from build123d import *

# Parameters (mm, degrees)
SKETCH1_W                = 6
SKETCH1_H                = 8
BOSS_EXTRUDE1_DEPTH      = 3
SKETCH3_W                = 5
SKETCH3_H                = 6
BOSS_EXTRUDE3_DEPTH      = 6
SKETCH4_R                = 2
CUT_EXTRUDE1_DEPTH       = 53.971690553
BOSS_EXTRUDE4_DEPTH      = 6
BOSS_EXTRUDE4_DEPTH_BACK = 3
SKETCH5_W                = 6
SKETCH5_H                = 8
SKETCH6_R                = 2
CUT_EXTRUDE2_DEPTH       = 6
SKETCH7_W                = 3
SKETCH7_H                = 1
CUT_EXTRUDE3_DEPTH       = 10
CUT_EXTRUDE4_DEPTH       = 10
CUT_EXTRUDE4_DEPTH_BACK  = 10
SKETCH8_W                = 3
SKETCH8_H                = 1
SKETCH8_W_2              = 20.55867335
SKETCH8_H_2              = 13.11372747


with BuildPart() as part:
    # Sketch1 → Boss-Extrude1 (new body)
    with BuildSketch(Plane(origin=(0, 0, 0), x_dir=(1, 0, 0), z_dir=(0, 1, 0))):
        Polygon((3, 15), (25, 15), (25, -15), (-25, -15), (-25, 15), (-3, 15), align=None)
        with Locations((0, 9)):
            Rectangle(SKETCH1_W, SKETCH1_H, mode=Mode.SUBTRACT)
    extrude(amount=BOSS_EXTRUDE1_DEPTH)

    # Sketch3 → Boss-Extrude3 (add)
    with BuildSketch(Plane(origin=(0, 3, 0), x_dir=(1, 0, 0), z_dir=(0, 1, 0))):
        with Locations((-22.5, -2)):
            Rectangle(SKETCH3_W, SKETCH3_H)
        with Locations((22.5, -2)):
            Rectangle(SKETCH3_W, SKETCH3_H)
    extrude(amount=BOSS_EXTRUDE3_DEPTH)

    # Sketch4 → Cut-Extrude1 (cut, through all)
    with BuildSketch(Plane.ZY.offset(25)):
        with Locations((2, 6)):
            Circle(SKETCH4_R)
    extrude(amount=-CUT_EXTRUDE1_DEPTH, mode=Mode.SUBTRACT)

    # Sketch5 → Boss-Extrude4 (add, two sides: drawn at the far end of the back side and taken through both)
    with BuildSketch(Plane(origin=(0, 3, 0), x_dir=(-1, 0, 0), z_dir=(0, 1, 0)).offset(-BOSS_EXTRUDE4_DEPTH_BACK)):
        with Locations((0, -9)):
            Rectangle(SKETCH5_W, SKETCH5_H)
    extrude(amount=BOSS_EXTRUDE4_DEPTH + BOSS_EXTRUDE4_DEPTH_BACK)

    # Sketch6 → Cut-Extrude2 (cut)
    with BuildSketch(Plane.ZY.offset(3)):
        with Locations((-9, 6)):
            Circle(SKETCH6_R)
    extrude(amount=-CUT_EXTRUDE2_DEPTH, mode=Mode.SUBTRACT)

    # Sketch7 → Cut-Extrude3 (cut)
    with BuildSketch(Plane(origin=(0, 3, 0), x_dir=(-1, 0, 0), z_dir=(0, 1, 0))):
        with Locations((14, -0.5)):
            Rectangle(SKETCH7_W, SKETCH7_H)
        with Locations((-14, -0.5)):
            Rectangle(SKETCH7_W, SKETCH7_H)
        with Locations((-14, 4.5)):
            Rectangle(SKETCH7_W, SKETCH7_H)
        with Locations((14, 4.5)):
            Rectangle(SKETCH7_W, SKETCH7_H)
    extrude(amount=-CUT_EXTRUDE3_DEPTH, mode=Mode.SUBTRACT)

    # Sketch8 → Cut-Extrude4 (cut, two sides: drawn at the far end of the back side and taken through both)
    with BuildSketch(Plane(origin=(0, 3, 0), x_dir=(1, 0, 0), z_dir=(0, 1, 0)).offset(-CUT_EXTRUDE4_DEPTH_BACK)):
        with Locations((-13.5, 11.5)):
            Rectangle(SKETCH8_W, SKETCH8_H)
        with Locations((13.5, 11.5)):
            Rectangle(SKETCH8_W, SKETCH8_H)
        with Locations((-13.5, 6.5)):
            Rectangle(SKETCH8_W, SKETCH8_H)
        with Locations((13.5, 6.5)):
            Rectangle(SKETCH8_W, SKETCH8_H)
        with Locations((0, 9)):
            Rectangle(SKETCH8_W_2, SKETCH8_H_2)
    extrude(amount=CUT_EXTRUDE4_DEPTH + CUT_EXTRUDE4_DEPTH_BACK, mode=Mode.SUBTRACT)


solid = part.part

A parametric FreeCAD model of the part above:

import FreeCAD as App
import Part
import Sketcher

V = App.Vector

doc = App.newDocument("Part")
body = doc.addObject("PartDesign::Body", "Body")

sketch1 = body.newObject("Sketcher::SketchObject", "Sketch")
sketch1.AttachmentSupport = (doc.getObject("XZ_Plane"), [""])
sketch1.MapMode = "FlatFace"
sketch1.addGeometry([
    Part.LineSegment(V(25, -15, 0), V(-25, -15, 0)),
    Part.LineSegment(V(-25, -15, 0), V(-25, 15, 0)),
    Part.LineSegment(V(-25, 15, 0), V(25, 15, 0)),
    Part.LineSegment(V(25, 15, 0), V(25, -15, 0)),
    Part.LineSegment(V(-3, -5, 0), V(-3, -13, 0)),
    Part.LineSegment(V(-3, -13, 0), V(3, -13, 0)),
    Part.LineSegment(V(3, -13, 0), V(3, -5, 0)),
    Part.LineSegment(V(3, -5, 0), V(-3, -5, 0)),
], False)
sketch1.addConstraint([
    Sketcher.Constraint("Coincident", 0, 2, 1, 1),
    Sketcher.Constraint("Coincident", 1, 2, 2, 1),
    Sketcher.Constraint("Coincident", 2, 2, 3, 1),
    Sketcher.Constraint("Coincident", 3, 2, 0, 1),
    Sketcher.Constraint("Coincident", 4, 2, 5, 1),
    Sketcher.Constraint("Coincident", 5, 2, 6, 1),
    Sketcher.Constraint("Coincident", 6, 2, 7, 1),
    Sketcher.Constraint("Coincident", 7, 2, 4, 1),
    Sketcher.Constraint("Horizontal", 0),
    Sketcher.Constraint("Vertical", 1),
    Sketcher.Constraint("Horizontal", 2),
    Sketcher.Constraint("Vertical", 3),
    Sketcher.Constraint("Vertical", 4),
    Sketcher.Constraint("Horizontal", 5),
    Sketcher.Constraint("Vertical", 6),
    Sketcher.Constraint("Horizontal", 7),
    Sketcher.Constraint("Symmetric", 0, 2, 2, 2, -1, 1),
    Sketcher.Constraint("DistanceX", 0, 2, 0, 1, 50.0),
    Sketcher.Constraint("DistanceX", 5, 1, 5, 2, 6.0),
    Sketcher.Constraint("DistanceY", 1, 1, 1, 2, 30.0),
    Sketcher.Constraint("DistanceY", 4, 2, 4, 1, 8.0),
    Sketcher.Constraint("DistanceX", 4, 2, -1, 1, 3.0),
    Sketcher.Constraint("DistanceY", 4, 2, -1, 1, 13.0),
])
pad1 = body.newObject("PartDesign::Pad", "Pad")
pad1.Profile = sketch1
pad1.Length = 3
pad1.Reversed = True

sketch2 = body.newObject("Sketcher::SketchObject", "Sketch001")
sketch2.AttachmentSupport = (doc.getObject("XZ_Plane"), [""])
sketch2.MapMode = "FlatFace"
sketch2.AttachmentOffset = App.Placement(V(0, 0, -3), App.Rotation())
sketch2.addGeometry([
    Part.LineSegment(V(-25, -1, 0), V(-25, 5, 0)),
    Part.LineSegment(V(-25, 5, 0), V(-20, 5, 0)),
    Part.LineSegment(V(-20, 5, 0), V(-20, -1, 0)),
    Part.LineSegment(V(-20, -1, 0), V(-25, -1, 0)),
    Part.LineSegment(V(20, -1, 0), V(20, 5, 0)),
    Part.LineSegment(V(20, 5, 0), V(25, 5, 0)),
    Part.LineSegment(V(25, 5, 0), V(25, -1, 0)),
    Part.LineSegment(V(25, -1, 0), V(20, -1, 0)),
], False)
sketch2.addConstraint([
    Sketcher.Constraint("Coincident", 0, 2, 1, 1),
    Sketcher.Constraint("Coincident", 1, 2, 2, 1),
    Sketcher.Constraint("Coincident", 2, 2, 3, 1),
    Sketcher.Constraint("Coincident", 3, 2, 0, 1),
    Sketcher.Constraint("Coincident", 4, 2, 5, 1),
    Sketcher.Constraint("Coincident", 5, 2, 6, 1),
    Sketcher.Constraint("Coincident", 6, 2, 7, 1),
    Sketcher.Constraint("Coincident", 7, 2, 4, 1),
    Sketcher.Constraint("Vertical", 0),
    Sketcher.Constraint("Horizontal", 1),
    Sketcher.Constraint("Vertical", 2),
    Sketcher.Constraint("Horizontal", 3),
    Sketcher.Constraint("Vertical", 4),
    Sketcher.Constraint("Horizontal", 5),
    Sketcher.Constraint("Vertical", 6),
    Sketcher.Constraint("Horizontal", 7),
    Sketcher.Constraint("Symmetric", 1, 2, 4, 2, -2),
    Sketcher.Constraint("Symmetric", 3, 2, 6, 2, -2),
    Sketcher.Constraint("DistanceX", 1, 1, 1, 2, 5.0),
    Sketcher.Constraint("DistanceY", 0, 1, 0, 2, 6.0),
    Sketcher.Constraint("DistanceX", 0, 2, -1, 1, 25.0),
    Sketcher.Constraint("DistanceY", -1, 1, 0, 2, 5.0),
])
pad2 = body.newObject("PartDesign::Pad", "Pad001")
pad2.Profile = sketch2
pad2.Length = 6
pad2.Reversed = True

sketch3 = body.newObject("Sketcher::SketchObject", "Sketch002")
sketch3.AttachmentSupport = (doc.getObject("YZ_Plane"), [""])
sketch3.MapMode = "FlatFace"
sketch3.AttachmentOffset = App.Placement(V(0, 0, -25), App.Rotation())
sketch3.addGeometry(Part.Circle(V(6, 2, 0), V(0, 0, 1), 2), False)
sketch3.addConstraint([
    Sketcher.Constraint("Diameter", 0, 4.0),
    Sketcher.Constraint("DistanceX", -1, 1, 0, 3, 6.0),
    Sketcher.Constraint("DistanceY", -1, 1, 0, 3, 2.0),
])
pocket1 = body.newObject("PartDesign::Pocket", "Pocket")
pocket1.Profile = sketch3
pocket1.Type = "ThroughAll"
pocket1.Reversed = True

sketch4 = body.newObject("Sketcher::SketchObject", "Sketch003")
sketch4.AttachmentSupport = (doc.getObject("XZ_Plane"), [""])
sketch4.MapMode = "FlatFace"
sketch4.AttachmentOffset = App.Placement(V(0, 0, -3), App.Rotation())
sketch4.addGeometry([
    Part.LineSegment(V(3, -5, 0), V(3, -13, 0)),
    Part.LineSegment(V(3, -13, 0), V(-3, -13, 0)),
    Part.LineSegment(V(-3, -13, 0), V(-3, -5, 0)),
    Part.LineSegment(V(-3, -5, 0), V(3, -5, 0)),
], False)
sketch4.addConstraint([
    Sketcher.Constraint("Coincident", 0, 2, 1, 1),
    Sketcher.Constraint("Coincident", 1, 2, 2, 1),
    Sketcher.Constraint("Coincident", 2, 2, 3, 1),
    Sketcher.Constraint("Coincident", 3, 2, 0, 1),
    Sketcher.Constraint("Vertical", 0),
    Sketcher.Constraint("Horizontal", 1),
    Sketcher.Constraint("Vertical", 2),
    Sketcher.Constraint("Horizontal", 3),
    Sketcher.Constraint("DistanceX", 1, 2, 1, 1, 6.0),
    Sketcher.Constraint("DistanceY", 0, 2, 0, 1, 8.0),
    Sketcher.Constraint("DistanceX", -1, 1, 0, 2, 3.0),
    Sketcher.Constraint("DistanceY", 0, 2, -1, 1, 13.0),
])
pad3 = body.newObject("PartDesign::Pad", "Pad002")
pad3.Profile = sketch4
pad3.Type = "TwoLengths"
pad3.Length = 6
pad3.Length2 = 3
pad3.Reversed = True

sketch5 = body.newObject("Sketcher::SketchObject", "Sketch004")
sketch5.AttachmentSupport = (doc.getObject("YZ_Plane"), [""])
sketch5.MapMode = "FlatFace"
sketch5.AttachmentOffset = App.Placement(V(0, 0, -3), App.Rotation())
sketch5.addGeometry(Part.Circle(V(6, -9, 0), V(0, 0, 1), 2), False)
sketch5.addConstraint([
    Sketcher.Constraint("Diameter", 0, 4.0),
    Sketcher.Constraint("DistanceX", -1, 1, 0, 3, 6.0),
    Sketcher.Constraint("DistanceY", 0, 3, -1, 1, 9.0),
])
pocket2 = body.newObject("PartDesign::Pocket", "Pocket001")
pocket2.Profile = sketch5
pocket2.Length = 6
pocket2.Reversed = True

sketch6 = body.newObject("Sketcher::SketchObject", "Sketch005")
sketch6.AttachmentSupport = (doc.getObject("XZ_Plane"), [""])
sketch6.MapMode = "FlatFace"
sketch6.AttachmentOffset = App.Placement(V(0, 0, -3), App.Rotation())
sketch6.addGeometry([
    Part.LineSegment(V(-12.5, 0, 0), V(-12.5, -1, 0)),
    Part.LineSegment(V(-12.5, -1, 0), V(-15.5, -1, 0)),
    Part.LineSegment(V(-15.5, -1, 0), V(-15.5, 0, 0)),
    Part.LineSegment(V(-15.5, 0, 0), V(-12.5, 0, 0)),
    Part.LineSegment(V(15.5, 0, 0), V(15.5, -1, 0)),
    Part.LineSegment(V(15.5, -1, 0), V(12.5, -1, 0)),
    Part.LineSegment(V(12.5, -1, 0), V(12.5, 0, 0)),
    Part.LineSegment(V(12.5, 0, 0), V(15.5, 0, 0)),
    Part.LineSegment(V(15.5, 5, 0), V(15.5, 4, 0)),
    Part.LineSegment(V(15.5, 4, 0), V(12.5, 4, 0)),
    Part.LineSegment(V(12.5, 4, 0), V(12.5, 5, 0)),
    Part.LineSegment(V(12.5, 5, 0), V(15.5, 5, 0)),
    Part.LineSegment(V(-12.5, 5, 0), V(-12.5, 4, 0)),
    Part.LineSegment(V(-12.5, 4, 0), V(-15.5, 4, 0)),
    Part.LineSegment(V(-15.5, 4, 0), V(-15.5, 5, 0)),
    Part.LineSegment(V(-15.5, 5, 0), V(-12.5, 5, 0)),
], False)
sketch6.addConstraint([
    Sketcher.Constraint("Coincident", 0, 2, 1, 1),
    Sketcher.Constraint("Coincident", 1, 2, 2, 1),
    Sketcher.Constraint("Coincident", 2, 2, 3, 1),
    Sketcher.Constraint("Coincident", 3, 2, 0, 1),
    Sketcher.Constraint("Coincident", 4, 2, 5, 1),
    Sketcher.Constraint("Coincident", 5, 2, 6, 1),
    Sketcher.Constraint("Coincident", 6, 2, 7, 1),
    Sketcher.Constraint("Coincident", 7, 2, 4, 1),
    Sketcher.Constraint("Coincident", 8, 2, 9, 1),
    Sketcher.Constraint("Coincident", 9, 2, 10, 1),
    Sketcher.Constraint("Coincident", 10, 2, 11, 1),
    Sketcher.Constraint("Coincident", 11, 2, 8, 1),
    Sketcher.Constraint("Coincident", 12, 2, 13, 1),
    Sketcher.Constraint("Coincident", 13, 2, 14, 1),
    Sketcher.Constraint("Coincident", 14, 2, 15, 1),
    Sketcher.Constraint("Coincident", 15, 2, 12, 1),
    Sketcher.Constraint("Vertical", 0),
    Sketcher.Constraint("Horizontal", 1),
    Sketcher.Constraint("Vertical", 2),
    Sketcher.Constraint("Horizontal", 3),
    Sketcher.Constraint("Vertical", 4),
    Sketcher.Constraint("Horizontal", 5),
    Sketcher.Constraint("Vertical", 6),
    Sketcher.Constraint("Horizontal", 7),
    Sketcher.Constraint("Vertical", 8),
    Sketcher.Constraint("Horizontal", 9),
    Sketcher.Constraint("Vertical", 10),
    Sketcher.Constraint("Horizontal", 11),
    Sketcher.Constraint("Vertical", 12),
    Sketcher.Constraint("Horizontal", 13),
    Sketcher.Constraint("Vertical", 14),
    Sketcher.Constraint("Horizontal", 15),
    Sketcher.Constraint("Symmetric", 3, 2, 6, 2, -1, 1),
    Sketcher.Constraint("Symmetric", 1, 2, 4, 2, -2),
    Sketcher.Constraint("Symmetric", 9, 2, 12, 2, -2),
    Sketcher.Constraint("Symmetric", 11, 2, 14, 2, -2),
    Sketcher.Constraint("PointOnObject", 2, 2, -1),
    Sketcher.Constraint("Vertical", 7, 2, 8, 2),
    Sketcher.Constraint("Vertical", 6, 2, 9, 2),
    Sketcher.Constraint("Equal", 6, 8),
    Sketcher.Constraint("DistanceX", 1, 2, 1, 1, 3.0),
    Sketcher.Constraint("DistanceY", 0, 2, 0, 1, 1.0),
    Sketcher.Constraint("DistanceY", -1, 1, 8, 2, 4.0),
    Sketcher.Constraint("DistanceX", 0, 2, 4, 2, 28.0),
])
pocket3 = body.newObject("PartDesign::Pocket", "Pocket002")
pocket3.Profile = sketch6
pocket3.Length = 10
pocket3.Reversed = True

sketch7 = body.newObject("Sketcher::SketchObject", "Sketch006")
sketch7.AttachmentSupport = (doc.getObject("XZ_Plane"), [""])
sketch7.MapMode = "FlatFace"
sketch7.AttachmentOffset = App.Placement(V(0, 0, -3), App.Rotation())
sketch7.addGeometry([
    Part.LineSegment(V(-15, -12, 0), V(-15, -11, 0)),
    Part.LineSegment(V(-15, -11, 0), V(-12, -11, 0)),
    Part.LineSegment(V(-12, -11, 0), V(-12, -12, 0)),
    Part.LineSegment(V(-12, -12, 0), V(-15, -12, 0)),
    Part.LineSegment(V(12, -12, 0), V(12, -11, 0)),
    Part.LineSegment(V(12, -11, 0), V(15, -11, 0)),
    Part.LineSegment(V(15, -11, 0), V(15, -12, 0)),
    Part.LineSegment(V(15, -12, 0), V(12, -12, 0)),
    Part.LineSegment(V(-15, -7, 0), V(-15, -6, 0)),
    Part.LineSegment(V(-15, -6, 0), V(-12, -6, 0)),
    Part.LineSegment(V(-12, -6, 0), V(-12, -7, 0)),
    Part.LineSegment(V(-12, -7, 0), V(-15, -7, 0)),
    Part.LineSegment(V(12, -7, 0), V(12, -6, 0)),
    Part.LineSegment(V(12, -6, 0), V(15, -6, 0)),
    Part.LineSegment(V(15, -6, 0), V(15, -7, 0)),
    Part.LineSegment(V(15, -7, 0), V(12, -7, 0)),
    Part.LineSegment(V(-10.3, -15.6, 0), V(-10.3, -2.4, 0)),
    Part.LineSegment(V(-10.3, -2.4, 0), V(10.3, -2.4, 0)),
    Part.LineSegment(V(10.3, -2.4, 0), V(10.3, -15.6, 0)),
    Part.LineSegment(V(10.3, -15.6, 0), V(-10.3, -15.6, 0)),
], False)
sketch7.addConstraint([
    Sketcher.Constraint("Coincident", 0, 2, 1, 1),
    Sketcher.Constraint("Coincident", 1, 2, 2, 1),
    Sketcher.Constraint("Coincident", 2, 2, 3, 1),
    Sketcher.Constraint("Coincident", 3, 2, 0, 1),
    Sketcher.Constraint("Coincident", 4, 2, 5, 1),
    Sketcher.Constraint("Coincident", 5, 2, 6, 1),
    Sketcher.Constraint("Coincident", 6, 2, 7, 1),
    Sketcher.Constraint("Coincident", 7, 2, 4, 1),
    Sketcher.Constraint("Coincident", 8, 2, 9, 1),
    Sketcher.Constraint("Coincident", 9, 2, 10, 1),
    Sketcher.Constraint("Coincident", 10, 2, 11, 1),
    Sketcher.Constraint("Coincident", 11, 2, 8, 1),
    Sketcher.Constraint("Coincident", 12, 2, 13, 1),
    Sketcher.Constraint("Coincident", 13, 2, 14, 1),
    Sketcher.Constraint("Coincident", 14, 2, 15, 1),
    Sketcher.Constraint("Coincident", 15, 2, 12, 1),
    Sketcher.Constraint("Coincident", 16, 2, 17, 1),
    Sketcher.Constraint("Coincident", 17, 2, 18, 1),
    Sketcher.Constraint("Coincident", 18, 2, 19, 1),
    Sketcher.Constraint("Coincident", 19, 2, 16, 1),
    Sketcher.Constraint("Vertical", 0),
    Sketcher.Constraint("Horizontal", 1),
    Sketcher.Constraint("Vertical", 2),
    Sketcher.Constraint("Horizontal", 3),
    Sketcher.Constraint("Vertical", 4),
    Sketcher.Constraint("Horizontal", 5),
    Sketcher.Constraint("Vertical", 6),
    Sketcher.Constraint("Horizontal", 7),
    Sketcher.Constraint("Vertical", 8),
    Sketcher.Constraint("Horizontal", 9),
    Sketcher.Constraint("Vertical", 10),
    Sketcher.Constraint("Horizontal", 11),
    Sketcher.Constraint("Vertical", 12),
    Sketcher.Constraint("Horizontal", 13),
    Sketcher.Constraint("Vertical", 14),
    Sketcher.Constraint("Horizontal", 15),
    Sketcher.Constraint("Vertical", 16),
    Sketcher.Constraint("Horizontal", 17),
    Sketcher.Constraint("Vertical", 18),
    Sketcher.Constraint("Horizontal", 19),
    Sketcher.Constraint("Symmetric", 1, 2, 4, 2, -2),
    Sketcher.Constraint("Symmetric", 3, 2, 6, 2, -2),
    Sketcher.Constraint("Symmetric", 9, 2, 12, 2, -2),
    Sketcher.Constraint("Symmetric", 11, 2, 14, 2, -2),
    Sketcher.Constraint("Vertical", 3, 2, 8, 2),
    Sketcher.Constraint("Vertical", 2, 2, 9, 2),
    Sketcher.Constraint("Equal", 6, 8),
    Sketcher.Constraint("DistanceX", 1, 1, 1, 2, 3.0),
    Sketcher.Constraint("DistanceY", 0, 1, 0, 2, 1.0),
    Sketcher.Constraint("DistanceX", 0, 2, -1, 1, 15.0),
    Sketcher.Constraint("DistanceY", 0, 2, -1, 1, 11.0),
    Sketcher.Constraint("DistanceY", 8, 2, -1, 1, 6.0),
    Sketcher.Constraint("DistanceX", 17, 1, 17, 2, 20.558673),
    Sketcher.Constraint("DistanceY", 16, 1, 16, 2, 13.113727),
    Sketcher.Constraint("DistanceX", 16, 2, -1, 1, 10.279337),
    Sketcher.Constraint("DistanceY", 16, 2, -1, 1, 2.443136),
])
pocket4 = body.newObject("PartDesign::Pocket", "Pocket003")
pocket4.Profile = sketch7
pocket4.Type = "ThroughAll"
pocket4.Midplane = True

doc.recompute()
